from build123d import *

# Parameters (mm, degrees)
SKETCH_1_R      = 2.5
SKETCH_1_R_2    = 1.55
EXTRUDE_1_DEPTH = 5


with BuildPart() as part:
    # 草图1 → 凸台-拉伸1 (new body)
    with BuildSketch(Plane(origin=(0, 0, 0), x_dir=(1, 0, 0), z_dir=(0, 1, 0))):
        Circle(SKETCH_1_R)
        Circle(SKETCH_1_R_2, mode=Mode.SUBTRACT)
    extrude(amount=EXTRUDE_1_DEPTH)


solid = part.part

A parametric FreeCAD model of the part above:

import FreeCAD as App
import Part
import Sketcher
Q = App.Units.Quantity

doc = App.newDocument("Part")
body = doc.addObject("PartDesign::Body", "Body")

# Sketch on XZ plane
sketch1 = body.newObject("Sketcher::SketchObject", "Sketch")
sketch1.AttachmentSupport = (doc.getObject("XZ_Plane"), [""])
sketch1.MapMode = "FlatFace"
sketch1.addGeometry([
    Part.Circle(App.Vector(0, 0, 0), App.Vector(0, 0, 1), 2.5),
    Part.Circle(App.Vector(0, 0, 0), App.Vector(0, 0, 1), 1.6),
], False)
sketch1.addConstraint([
    Sketcher.Constraint("Coincident", 0, 3, -1, 1),
    Sketcher.Constraint("Coincident", 1, 3, -1, 1),
    Sketcher.Constraint("Diameter", 0, Q("5 mm")),
    Sketcher.Constraint("Diameter", 1, Q("3.1 mm")),
])
pad1 = body.newObject("PartDesign::Pad", "Pad")
pad1.Profile = sketch1
pad1.Length = 5
pad1.Reversed = True

doc.recompute()
